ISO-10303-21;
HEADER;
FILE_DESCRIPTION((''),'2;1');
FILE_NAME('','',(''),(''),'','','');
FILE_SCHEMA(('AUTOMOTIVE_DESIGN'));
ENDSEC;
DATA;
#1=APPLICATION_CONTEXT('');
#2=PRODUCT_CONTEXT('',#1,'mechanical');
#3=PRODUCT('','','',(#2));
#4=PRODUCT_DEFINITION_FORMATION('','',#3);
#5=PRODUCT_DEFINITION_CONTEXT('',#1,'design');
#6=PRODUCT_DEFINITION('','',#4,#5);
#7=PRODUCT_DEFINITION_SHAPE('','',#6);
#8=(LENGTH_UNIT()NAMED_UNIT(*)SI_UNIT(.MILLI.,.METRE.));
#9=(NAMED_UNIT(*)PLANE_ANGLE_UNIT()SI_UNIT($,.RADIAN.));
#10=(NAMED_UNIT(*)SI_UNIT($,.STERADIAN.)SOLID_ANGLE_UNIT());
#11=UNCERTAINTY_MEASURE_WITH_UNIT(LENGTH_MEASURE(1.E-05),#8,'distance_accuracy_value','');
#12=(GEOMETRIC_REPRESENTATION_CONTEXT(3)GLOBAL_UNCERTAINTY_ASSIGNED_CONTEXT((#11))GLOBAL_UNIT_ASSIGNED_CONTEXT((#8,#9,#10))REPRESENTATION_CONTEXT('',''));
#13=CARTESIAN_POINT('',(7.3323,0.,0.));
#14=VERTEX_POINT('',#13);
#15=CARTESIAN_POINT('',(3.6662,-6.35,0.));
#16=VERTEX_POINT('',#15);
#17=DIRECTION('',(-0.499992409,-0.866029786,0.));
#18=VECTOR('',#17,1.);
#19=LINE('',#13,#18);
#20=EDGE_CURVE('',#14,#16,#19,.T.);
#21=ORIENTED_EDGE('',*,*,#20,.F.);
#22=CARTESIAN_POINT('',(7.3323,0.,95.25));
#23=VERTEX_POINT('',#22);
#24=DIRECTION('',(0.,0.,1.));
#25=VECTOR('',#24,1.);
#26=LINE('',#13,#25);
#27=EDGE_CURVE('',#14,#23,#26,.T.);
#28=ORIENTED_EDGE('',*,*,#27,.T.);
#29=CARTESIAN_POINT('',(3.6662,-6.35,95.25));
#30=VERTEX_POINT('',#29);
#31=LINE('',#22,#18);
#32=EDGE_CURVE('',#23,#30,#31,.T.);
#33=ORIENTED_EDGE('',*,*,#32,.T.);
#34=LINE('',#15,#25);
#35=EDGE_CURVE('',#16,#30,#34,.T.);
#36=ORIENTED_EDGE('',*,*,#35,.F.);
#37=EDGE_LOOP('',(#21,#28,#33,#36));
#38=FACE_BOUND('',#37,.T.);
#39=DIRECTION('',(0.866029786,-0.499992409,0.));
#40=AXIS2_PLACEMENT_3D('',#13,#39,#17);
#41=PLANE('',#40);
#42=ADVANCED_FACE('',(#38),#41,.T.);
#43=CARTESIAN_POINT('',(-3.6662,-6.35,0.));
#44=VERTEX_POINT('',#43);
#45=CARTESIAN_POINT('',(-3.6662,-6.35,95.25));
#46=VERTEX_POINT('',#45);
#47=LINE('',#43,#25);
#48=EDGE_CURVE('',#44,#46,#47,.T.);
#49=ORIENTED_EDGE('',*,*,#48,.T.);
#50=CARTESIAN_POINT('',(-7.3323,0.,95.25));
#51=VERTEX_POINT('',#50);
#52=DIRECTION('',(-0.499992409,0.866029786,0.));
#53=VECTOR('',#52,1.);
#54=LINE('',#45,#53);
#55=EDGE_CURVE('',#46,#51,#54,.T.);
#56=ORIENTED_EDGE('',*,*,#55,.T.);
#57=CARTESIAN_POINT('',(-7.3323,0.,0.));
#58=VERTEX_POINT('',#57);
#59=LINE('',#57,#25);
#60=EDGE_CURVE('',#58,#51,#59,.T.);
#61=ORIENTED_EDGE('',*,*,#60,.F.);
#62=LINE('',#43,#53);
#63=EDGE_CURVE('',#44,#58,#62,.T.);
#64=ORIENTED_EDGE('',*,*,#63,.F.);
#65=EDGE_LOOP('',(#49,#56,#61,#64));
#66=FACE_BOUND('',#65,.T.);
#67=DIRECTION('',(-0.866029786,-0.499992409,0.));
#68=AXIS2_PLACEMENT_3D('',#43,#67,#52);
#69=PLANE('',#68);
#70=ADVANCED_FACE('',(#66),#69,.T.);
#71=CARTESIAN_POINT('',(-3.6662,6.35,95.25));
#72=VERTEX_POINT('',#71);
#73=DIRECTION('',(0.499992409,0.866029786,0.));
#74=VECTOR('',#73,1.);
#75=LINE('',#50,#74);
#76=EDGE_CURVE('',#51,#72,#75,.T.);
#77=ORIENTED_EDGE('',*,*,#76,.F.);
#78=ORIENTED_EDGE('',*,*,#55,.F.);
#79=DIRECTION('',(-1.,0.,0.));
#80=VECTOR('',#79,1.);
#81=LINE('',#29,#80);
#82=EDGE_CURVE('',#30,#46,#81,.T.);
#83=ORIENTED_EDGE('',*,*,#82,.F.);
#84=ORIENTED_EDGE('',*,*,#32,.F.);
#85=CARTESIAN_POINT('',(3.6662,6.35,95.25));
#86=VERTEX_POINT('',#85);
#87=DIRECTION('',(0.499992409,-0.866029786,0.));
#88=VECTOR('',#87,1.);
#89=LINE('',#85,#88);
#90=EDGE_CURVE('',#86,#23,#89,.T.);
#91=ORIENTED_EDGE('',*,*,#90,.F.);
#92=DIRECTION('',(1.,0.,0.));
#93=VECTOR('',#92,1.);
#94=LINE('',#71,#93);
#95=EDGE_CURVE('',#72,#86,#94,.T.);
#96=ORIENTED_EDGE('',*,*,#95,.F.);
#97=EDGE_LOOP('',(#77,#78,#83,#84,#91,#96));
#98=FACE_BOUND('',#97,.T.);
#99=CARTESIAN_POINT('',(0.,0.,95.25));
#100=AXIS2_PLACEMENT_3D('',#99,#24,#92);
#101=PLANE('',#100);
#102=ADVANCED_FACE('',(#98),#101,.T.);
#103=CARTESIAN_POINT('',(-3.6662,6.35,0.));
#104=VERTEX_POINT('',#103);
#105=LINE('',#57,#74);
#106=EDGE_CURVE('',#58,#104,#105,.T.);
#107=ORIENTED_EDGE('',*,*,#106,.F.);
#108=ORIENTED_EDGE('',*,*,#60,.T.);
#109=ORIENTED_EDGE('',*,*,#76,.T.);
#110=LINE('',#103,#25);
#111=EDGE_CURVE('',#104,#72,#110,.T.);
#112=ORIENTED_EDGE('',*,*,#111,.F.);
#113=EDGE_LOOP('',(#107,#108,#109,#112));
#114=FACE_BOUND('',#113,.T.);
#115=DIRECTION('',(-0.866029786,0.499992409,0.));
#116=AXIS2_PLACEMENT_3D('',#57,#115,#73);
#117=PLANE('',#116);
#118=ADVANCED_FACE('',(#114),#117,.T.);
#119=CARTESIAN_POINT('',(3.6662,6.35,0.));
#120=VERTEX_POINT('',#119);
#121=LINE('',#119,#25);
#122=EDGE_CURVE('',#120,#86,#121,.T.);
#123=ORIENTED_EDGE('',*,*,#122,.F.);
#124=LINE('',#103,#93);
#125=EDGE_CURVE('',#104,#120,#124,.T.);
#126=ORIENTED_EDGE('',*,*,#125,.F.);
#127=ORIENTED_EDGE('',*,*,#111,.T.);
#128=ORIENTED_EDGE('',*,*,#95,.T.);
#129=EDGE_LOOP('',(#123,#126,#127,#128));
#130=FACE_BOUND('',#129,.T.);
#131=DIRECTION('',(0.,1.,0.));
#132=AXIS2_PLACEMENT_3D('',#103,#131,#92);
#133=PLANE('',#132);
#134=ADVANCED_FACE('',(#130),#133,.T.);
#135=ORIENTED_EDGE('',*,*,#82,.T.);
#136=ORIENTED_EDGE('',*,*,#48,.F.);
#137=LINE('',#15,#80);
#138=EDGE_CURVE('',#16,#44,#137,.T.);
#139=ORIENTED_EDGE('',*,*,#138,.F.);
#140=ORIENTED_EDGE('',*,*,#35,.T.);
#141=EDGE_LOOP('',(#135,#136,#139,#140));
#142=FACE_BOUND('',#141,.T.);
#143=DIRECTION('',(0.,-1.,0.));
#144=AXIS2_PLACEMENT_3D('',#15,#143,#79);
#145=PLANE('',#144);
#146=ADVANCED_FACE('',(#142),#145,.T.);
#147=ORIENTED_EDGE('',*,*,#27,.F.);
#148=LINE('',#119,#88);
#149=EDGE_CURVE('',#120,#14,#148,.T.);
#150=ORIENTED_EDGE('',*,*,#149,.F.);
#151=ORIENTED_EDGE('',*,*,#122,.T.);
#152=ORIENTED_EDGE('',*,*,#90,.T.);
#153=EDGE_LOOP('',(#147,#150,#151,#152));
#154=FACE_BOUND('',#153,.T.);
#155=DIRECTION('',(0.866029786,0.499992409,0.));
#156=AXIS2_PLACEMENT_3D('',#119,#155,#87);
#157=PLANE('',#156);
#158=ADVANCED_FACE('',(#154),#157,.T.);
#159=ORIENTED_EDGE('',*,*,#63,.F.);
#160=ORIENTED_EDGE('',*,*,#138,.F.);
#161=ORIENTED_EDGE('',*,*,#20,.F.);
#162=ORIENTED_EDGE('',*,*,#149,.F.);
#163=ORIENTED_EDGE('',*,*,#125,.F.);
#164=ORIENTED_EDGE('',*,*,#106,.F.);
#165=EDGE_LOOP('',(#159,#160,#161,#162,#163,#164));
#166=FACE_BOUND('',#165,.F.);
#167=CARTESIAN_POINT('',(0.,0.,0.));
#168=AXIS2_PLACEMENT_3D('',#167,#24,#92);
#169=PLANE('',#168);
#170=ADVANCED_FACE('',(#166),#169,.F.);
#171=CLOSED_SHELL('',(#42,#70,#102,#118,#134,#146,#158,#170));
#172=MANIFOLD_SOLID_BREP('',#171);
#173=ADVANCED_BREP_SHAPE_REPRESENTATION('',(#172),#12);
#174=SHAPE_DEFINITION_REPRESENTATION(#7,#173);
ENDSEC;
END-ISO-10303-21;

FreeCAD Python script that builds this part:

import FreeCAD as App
import Part
import Sketcher

V = App.Vector
Q = App.Units.Quantity

doc = App.newDocument("Part")
body = doc.addObject("PartDesign::Body", "Body")

sketch1 = body.newObject("Sketcher::SketchObject", "Sketch")
sketch1.AttachmentSupport = (doc.getObject("XY_Plane"), [""])
sketch1.MapMode = "FlatFace"
sketch1.addGeometry([
    Part.LineSegment(V(4, -6, 0), V(7, 0, 0)),
    Part.LineSegment(V(7, 0, 0), V(4, 6, 0)),
    Part.LineSegment(V(4, 6, 0), V(-4, 6, 0)),
    Part.LineSegment(V(-4, 6, 0), V(-7, 0, 0)),
    Part.LineSegment(V(-7, 0, 0), V(-4, -6, 0)),
    Part.LineSegment(V(-4, -6, 0), V(4, -6, 0)),
], False)
sketch1.addConstraint([
    Sketcher.Constraint("Coincident", 0, 2, 1, 1),
    Sketcher.Constraint("Coincident", 1, 2, 2, 1),
    Sketcher.Constraint("Coincident", 2, 2, 3, 1),
    Sketcher.Constraint("Coincident", 3, 2, 4, 1),
    Sketcher.Constraint("Coincident", 4, 2, 5, 1),
    Sketcher.Constraint("Coincident", 5, 2, 0, 1),
    Sketcher.Constraint("Horizontal", 2),
    Sketcher.Constraint("Horizontal", 5),
    Sketcher.Constraint("Symmetric", 0, 2, 3, 2, -1, 1),
    Sketcher.Constraint("Symmetric", 1, 2, 4, 2, -1, 1),
    Sketcher.Constraint("PointOnObject", 0, 2, -1),
    Sketcher.Constraint("Parallel", 0, 3),
    Sketcher.Constraint("Vertical", 2, 2, 4, 2),
    Sketcher.Constraint("DistanceY", 4, 2, 2, 2, Q("0.5 in")),
    Sketcher.Constraint("Angle", 0, Q("60.0005 deg")),
    Sketcher.Constraint("DistanceX", 2, 2, 0, 2, Q("0.433 in")),
])
pad1 = body.newObject("PartDesign::Pad", "Pad")
pad1.Profile = sketch1
pad1.Length = Q("3.75 in")

doc.recompute()
